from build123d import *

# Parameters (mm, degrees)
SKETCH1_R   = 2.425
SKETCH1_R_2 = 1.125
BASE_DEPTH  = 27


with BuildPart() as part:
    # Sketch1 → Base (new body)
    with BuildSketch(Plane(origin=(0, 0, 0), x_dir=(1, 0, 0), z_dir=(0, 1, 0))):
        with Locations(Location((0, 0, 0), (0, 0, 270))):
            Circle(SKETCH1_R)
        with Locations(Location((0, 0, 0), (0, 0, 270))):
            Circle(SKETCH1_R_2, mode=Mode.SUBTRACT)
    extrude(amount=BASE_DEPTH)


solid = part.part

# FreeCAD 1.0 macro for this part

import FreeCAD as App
import Part
import Sketcher
from FreeCAD import Vector

doc = App.newDocument("Part")
body = doc.addObject("PartDesign::Body", "Body")

sketch1 = body.newObject("Sketcher::SketchObject", "Sketch")
sketch1.AttachmentSupport = (doc.getObject("XZ_Plane"), [""])
sketch1.MapMode = "FlatFace"
sketch1.addGeometry([
    Part.Circle(Vector(0, 0, 0), Vector(0, 0, 1), 2.425),
    Part.Circle(Vector(0, 0, 0), Vector(0, 0, 1), 1.125),
], False)
sketch1.addConstraint([
    Sketcher.Constraint("Coincident", 0, 3, -1, 1),
    Sketcher.Constraint("Coincident", 1, 3, -1, 1),
    Sketcher.Constraint("Diameter", 0, 4.85),
    Sketcher.Constraint("Diameter", 1, 2.25),
])
pad1 = body.newObject("PartDesign::Pad", "Pad")
pad1.Profile = sketch1
pad1.Length = 27
pad1.Reversed = True

doc.recompute()
